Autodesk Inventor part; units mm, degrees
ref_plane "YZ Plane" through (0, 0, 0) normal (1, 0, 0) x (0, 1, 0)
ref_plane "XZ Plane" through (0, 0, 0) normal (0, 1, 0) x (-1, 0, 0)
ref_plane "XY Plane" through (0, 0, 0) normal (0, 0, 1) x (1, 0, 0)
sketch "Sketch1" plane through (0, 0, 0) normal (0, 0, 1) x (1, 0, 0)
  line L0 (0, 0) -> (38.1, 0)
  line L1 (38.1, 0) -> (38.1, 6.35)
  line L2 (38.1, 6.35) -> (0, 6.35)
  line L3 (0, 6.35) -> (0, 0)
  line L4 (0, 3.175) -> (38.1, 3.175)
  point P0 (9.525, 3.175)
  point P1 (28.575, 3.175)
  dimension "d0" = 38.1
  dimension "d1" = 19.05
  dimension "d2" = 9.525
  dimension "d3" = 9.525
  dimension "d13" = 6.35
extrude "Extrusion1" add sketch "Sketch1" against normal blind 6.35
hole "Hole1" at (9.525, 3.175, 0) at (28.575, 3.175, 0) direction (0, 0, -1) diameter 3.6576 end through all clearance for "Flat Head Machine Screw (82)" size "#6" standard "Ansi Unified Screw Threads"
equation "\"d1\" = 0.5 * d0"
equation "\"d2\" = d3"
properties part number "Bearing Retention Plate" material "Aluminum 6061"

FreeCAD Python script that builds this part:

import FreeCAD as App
import Part
import Sketcher
Q = App.Units.Quantity


def add_polygon(sketch, points):
    """Adds a closed chain of lines whose ends are joined by coincident constraints."""
    first, n = sketch.GeometryCount, len(points)
    for a, b in zip(points, points[1:] + points[:1]):
        sketch.addGeometry(Part.LineSegment(App.Vector(*a, 0), App.Vector(*b, 0)), False)
    for i in range(n):
        sketch.addConstraint(Sketcher.Constraint("Coincident", first + i, 2, first + (i + 1) % n, 1))

doc = App.newDocument("Part")
body = doc.addObject("PartDesign::Body", "Body")

# Sketch on XY plane
sketch1 = body.newObject("Sketcher::SketchObject", "Sketch")
sketch1.AttachmentSupport = (doc.getObject("XY_Plane"), [""])
sketch1.MapMode = "FlatFace"
add_polygon(sketch1, [(0, 0), (38.1, 0), (38.1, 6.35), (0, 6.35)])  # lines 0-3
sketch1.addConstraint(Sketcher.Constraint("Horizontal", 0))
sketch1.addConstraint(Sketcher.Constraint("Vertical", 1))
sketch1.addConstraint(Sketcher.Constraint("Horizontal", 2))
sketch1.addConstraint(Sketcher.Constraint("Vertical", 3))
sketch1.addConstraint(Sketcher.Constraint("Coincident", 3, 2, -1, 1))
sketch1.addConstraint(Sketcher.Constraint("DistanceX", 0, 1, 0, 2, Q("1.5 in")))
sketch1.addConstraint(Sketcher.Constraint("DistanceY", 1, 1, 1, 2, Q("0.25 in")))
pad1 = body.newObject("PartDesign::Pad", "Pad")
pad1.Profile = sketch1
pad1.Length = Q("0.25 in")
pad1.Reversed = True

# Sketch on XY plane
sketch2 = body.newObject("Sketcher::SketchObject", "Sketch001")
sketch2.AttachmentSupport = (doc.getObject("XY_Plane"), [""])
sketch2.MapMode = "FlatFace"
sketch2.addGeometry(Part.Circle(App.Vector(9.525, 3.175, 0), App.Vector(0, 0, 1), 1.8288), False)
sketch2.addGeometry(Part.Circle(App.Vector(28.575, 3.175, 0), App.Vector(0, 0, 1), 1.8288), False)
sketch2.addConstraint(Sketcher.Constraint("Equal", 0, 1))
sketch2.addConstraint(Sketcher.Constraint("Horizontal", 0, 3, 1, 3))
sketch2.addConstraint(Sketcher.Constraint("Diameter", 0, Q("0.144 in")))
sketch2.addConstraint(Sketcher.Constraint("DistanceX", 0, 3, 1, 3, Q("0.75 in")))
sketch2.addConstraint(Sketcher.Constraint("DistanceX", -1, 1, 0, 3, Q("0.375 in")))
sketch2.addConstraint(Sketcher.Constraint("DistanceY", -1, 1, 0, 3, Q("0.125 in")))
doc.recompute()
hole = body.newObject("PartDesign::Hole", "Hole")
hole.Profile = sketch2
hole.ThreadType = "None"
hole.Diameter = Q("0.144 in")
hole.DepthType = "ThroughAll"

doc.recompute()
